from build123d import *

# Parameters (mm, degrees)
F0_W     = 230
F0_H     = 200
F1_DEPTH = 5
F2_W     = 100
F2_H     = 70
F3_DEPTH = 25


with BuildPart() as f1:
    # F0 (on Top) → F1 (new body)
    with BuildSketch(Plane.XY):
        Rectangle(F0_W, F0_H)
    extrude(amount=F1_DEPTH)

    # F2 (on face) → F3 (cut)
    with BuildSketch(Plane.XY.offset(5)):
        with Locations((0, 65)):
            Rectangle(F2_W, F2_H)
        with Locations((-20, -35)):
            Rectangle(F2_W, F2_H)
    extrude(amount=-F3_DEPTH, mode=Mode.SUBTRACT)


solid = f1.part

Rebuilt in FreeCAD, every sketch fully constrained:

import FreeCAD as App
import Part
import Sketcher
Q = App.Units.Quantity


def add_polygon(sketch, points):
    """Adds a closed chain of lines whose ends are joined by coincident constraints."""
    first, n = sketch.GeometryCount, len(points)
    for a, b in zip(points, points[1:] + points[:1]):
        sketch.addGeometry(Part.LineSegment(App.Vector(*a, 0), App.Vector(*b, 0)), False)
    for i in range(n):
        sketch.addConstraint(Sketcher.Constraint("Coincident", first + i, 2, first + (i + 1) % n, 1))

doc = App.newDocument("Part")
params = doc.addObject("Spreadsheet::Sheet", "Params")
for row, (alias, value) in enumerate([
    ("sketch1_width", "230 mm"),
    ("sketch1_height", "200 mm"),
    ("pad1_length", "5 mm"),
    ("sketch2_width", "100 mm"),
    ("sketch2_height", "70 mm"),
    ("pocket1_length", "25 mm"),
], start=1):
    params.set(f"A{row}", alias)
    params.set(f"B{row}", "=" + value)
    params.setAlias(f"B{row}", alias)

body = doc.addObject("PartDesign::Body", "Body")

# Sketch on XY plane
sketch1 = doc.addObject("Sketcher::SketchObject", "Sketch")
body.addObject(sketch1)
sketch1.AttachmentSupport = (doc.XY_Plane, [""])
sketch1.MapMode = "FlatFace"
add_polygon(sketch1, [(-115, 100), (-115, -100), (115, -100), (115, 100)])  # lines 0-3
sketch1.addConstraint([
    Sketcher.Constraint("Vertical", 0),
    Sketcher.Constraint("Horizontal", 1),
    Sketcher.Constraint("Vertical", 2),
    Sketcher.Constraint("Horizontal", 3),
    Sketcher.Constraint("Symmetric", 0, 2, 2, 2, -1, 1),
    Sketcher.Constraint("DistanceX", 1, 1, 1, 2, Q("230 mm")),
    Sketcher.Constraint("DistanceY", 0, 2, 0, 1, Q("200 mm")),
])
sketch1.setExpression("Constraints[9]", "Params.sketch1_width")
sketch1.setExpression("Constraints[10]", "Params.sketch1_height")
pad1 = doc.addObject("PartDesign::Pad", "Pad")
body.addObject(pad1)
pad1.Profile = sketch1
pad1.setExpression("Length", "Params.pad1_length")

# Sketch on XY plane
sketch2 = doc.addObject("Sketcher::SketchObject", "Sketch001")
body.addObject(sketch2)
sketch2.AttachmentSupport = (doc.XY_Plane, [""])
sketch2.MapMode = "FlatFace"
sketch2.AttachmentOffset = App.Placement(App.Vector(0, 0, 5), App.Rotation())
add_polygon(sketch2, [(-50, 100), (-50, 30), (50, 30), (50, 100)])  # lines 0-3
add_polygon(sketch2, [(-70, 0), (-70, -70), (30, -70), (30, 0)])  # lines 4-7
sketch2.addConstraint([
    Sketcher.Constraint("Vertical", 0),
    Sketcher.Constraint("Horizontal", 1),
    Sketcher.Constraint("Vertical", 2),
    Sketcher.Constraint("Horizontal", 3),
    Sketcher.Constraint("Vertical", 4),
    Sketcher.Constraint("Horizontal", 5),
    Sketcher.Constraint("Vertical", 6),
    Sketcher.Constraint("Horizontal", 7),
    Sketcher.Constraint("PointOnObject", 6, 2, -1),
    Sketcher.Constraint("Equal", 3, 5),
    Sketcher.Constraint("Equal", 2, 4),
    Sketcher.Constraint("DistanceX", 1, 1, 1, 2, Q("100 mm")),
    Sketcher.Constraint("DistanceY", 0, 2, 0, 1, Q("70 mm")),
    Sketcher.Constraint("DistanceX", 0, 2, -1, 1, Q("50 mm")),
    Sketcher.Constraint("DistanceY", -1, 1, 0, 2, Q("30 mm")),
    Sketcher.Constraint("DistanceX", 4, 2, -1, 1, Q("70 mm")),
])
sketch2.setExpression("Constraints[19]", "Params.sketch2_width")
sketch2.setExpression("Constraints[20]", "Params.sketch2_height")
pocket1 = doc.addObject("PartDesign::Pocket", "Pocket")
body.addObject(pocket1)
pocket1.Profile = sketch2
pocket1.setExpression("Length", "Params.pocket1_length")

doc.recompute()
